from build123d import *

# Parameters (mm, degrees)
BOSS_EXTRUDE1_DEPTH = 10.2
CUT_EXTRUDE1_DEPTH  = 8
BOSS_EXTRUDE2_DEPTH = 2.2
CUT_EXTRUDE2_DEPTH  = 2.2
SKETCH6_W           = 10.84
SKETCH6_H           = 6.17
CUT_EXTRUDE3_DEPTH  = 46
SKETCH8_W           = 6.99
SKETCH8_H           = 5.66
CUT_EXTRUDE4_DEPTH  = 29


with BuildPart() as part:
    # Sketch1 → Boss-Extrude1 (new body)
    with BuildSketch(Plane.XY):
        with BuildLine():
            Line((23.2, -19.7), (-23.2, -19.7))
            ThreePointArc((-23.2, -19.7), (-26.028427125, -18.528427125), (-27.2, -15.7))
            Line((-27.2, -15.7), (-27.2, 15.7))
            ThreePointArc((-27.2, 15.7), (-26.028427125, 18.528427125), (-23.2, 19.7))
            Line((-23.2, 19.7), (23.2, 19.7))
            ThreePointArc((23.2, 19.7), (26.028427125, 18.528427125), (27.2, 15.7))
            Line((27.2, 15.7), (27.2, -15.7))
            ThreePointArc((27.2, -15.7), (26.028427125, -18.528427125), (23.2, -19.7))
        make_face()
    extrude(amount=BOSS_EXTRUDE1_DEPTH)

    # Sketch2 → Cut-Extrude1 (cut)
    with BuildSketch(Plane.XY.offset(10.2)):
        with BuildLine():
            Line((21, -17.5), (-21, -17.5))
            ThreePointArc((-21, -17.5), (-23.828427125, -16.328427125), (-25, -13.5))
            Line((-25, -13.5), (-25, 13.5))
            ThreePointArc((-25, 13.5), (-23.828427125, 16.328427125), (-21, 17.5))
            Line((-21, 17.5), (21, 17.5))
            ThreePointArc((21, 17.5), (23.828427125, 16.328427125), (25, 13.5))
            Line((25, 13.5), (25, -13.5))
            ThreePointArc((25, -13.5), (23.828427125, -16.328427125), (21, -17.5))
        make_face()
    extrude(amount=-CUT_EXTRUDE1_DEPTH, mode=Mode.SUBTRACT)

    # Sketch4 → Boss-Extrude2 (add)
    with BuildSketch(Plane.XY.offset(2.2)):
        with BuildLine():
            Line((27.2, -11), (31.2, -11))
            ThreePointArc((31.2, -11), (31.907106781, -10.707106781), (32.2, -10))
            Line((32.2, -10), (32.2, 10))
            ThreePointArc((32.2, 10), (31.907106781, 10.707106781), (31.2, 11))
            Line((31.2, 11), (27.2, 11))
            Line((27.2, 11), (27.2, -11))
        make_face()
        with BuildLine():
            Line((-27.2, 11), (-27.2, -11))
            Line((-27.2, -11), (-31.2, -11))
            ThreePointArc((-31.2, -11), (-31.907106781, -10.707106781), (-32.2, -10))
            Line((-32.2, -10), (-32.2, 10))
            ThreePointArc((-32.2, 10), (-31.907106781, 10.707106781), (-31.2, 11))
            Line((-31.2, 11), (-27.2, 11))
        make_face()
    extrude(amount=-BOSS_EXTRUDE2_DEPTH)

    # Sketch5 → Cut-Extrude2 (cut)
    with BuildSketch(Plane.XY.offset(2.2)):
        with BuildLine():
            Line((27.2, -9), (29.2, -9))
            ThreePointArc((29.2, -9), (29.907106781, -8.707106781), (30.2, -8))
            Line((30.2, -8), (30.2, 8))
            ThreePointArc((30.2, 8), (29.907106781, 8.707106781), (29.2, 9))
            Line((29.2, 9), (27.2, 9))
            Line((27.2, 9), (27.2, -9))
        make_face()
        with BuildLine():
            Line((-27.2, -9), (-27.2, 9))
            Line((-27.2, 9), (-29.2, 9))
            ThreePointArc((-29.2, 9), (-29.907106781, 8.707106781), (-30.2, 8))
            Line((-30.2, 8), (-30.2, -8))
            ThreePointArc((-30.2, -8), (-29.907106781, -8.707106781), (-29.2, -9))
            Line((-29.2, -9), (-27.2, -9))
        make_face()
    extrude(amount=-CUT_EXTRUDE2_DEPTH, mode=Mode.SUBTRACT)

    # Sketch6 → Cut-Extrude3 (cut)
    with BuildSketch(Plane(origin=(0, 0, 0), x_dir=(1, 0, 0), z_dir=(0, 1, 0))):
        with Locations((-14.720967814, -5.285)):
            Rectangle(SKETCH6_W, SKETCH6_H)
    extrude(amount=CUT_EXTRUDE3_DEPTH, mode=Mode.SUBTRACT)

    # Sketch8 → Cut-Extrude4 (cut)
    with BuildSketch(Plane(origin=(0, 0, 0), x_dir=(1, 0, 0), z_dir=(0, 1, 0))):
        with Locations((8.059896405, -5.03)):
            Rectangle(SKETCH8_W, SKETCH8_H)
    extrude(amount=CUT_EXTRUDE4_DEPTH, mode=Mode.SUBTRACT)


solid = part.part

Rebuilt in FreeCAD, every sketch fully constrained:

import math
import FreeCAD as App
import Part
import Sketcher
from FreeCAD import Vector


def add_polygon(sketch, points):
    """Adds a closed chain of lines whose ends are joined by coincident constraints."""
    first, n = sketch.GeometryCount, len(points)
    for a, b in zip(points, points[1:] + points[:1]):
        sketch.addGeometry(Part.LineSegment(App.Vector(*a, 0), App.Vector(*b, 0)), False)
    for i in range(n):
        sketch.addConstraint(Sketcher.Constraint("Coincident", first + i, 2, first + (i + 1) % n, 1))

doc = App.newDocument("Part")
body = doc.addObject("PartDesign::Body", "Body")

# Sketch on XY plane
sketch1 = body.newObject("Sketcher::SketchObject", "Sketch")
sketch1.AttachmentSupport = (doc.getObject("XY_Plane"), [""])
sketch1.MapMode = "FlatFace"
sketch1.addGeometry(Part.LineSegment(Vector(-23.2, -19.7, 0), Vector(23.2, -19.7, 0)), False)
sketch1.addGeometry(Part.ArcOfCircle(Part.Circle(Vector(23.2, -15.7, 0), Vector(0, 0, 1), 4), math.radians(-90), math.radians(0)), False)
sketch1.addGeometry(Part.LineSegment(Vector(27.2, -15.7, 0), Vector(27.2, 15.7, 0)), False)
sketch1.addGeometry(Part.ArcOfCircle(Part.Circle(Vector(23.2, 15.7, 0), Vector(0, 0, 1), 4), math.radians(0), math.radians(90)), False)
sketch1.addGeometry(Part.LineSegment(Vector(23.2, 19.7, 0), Vector(-23.2, 19.7, 0)), False)
sketch1.addGeometry(Part.ArcOfCircle(Part.Circle(Vector(-23.2, 15.7, 0), Vector(0, 0, 1), 4), math.radians(90), math.radians(180)), False)
sketch1.addGeometry(Part.LineSegment(Vector(-27.2, 15.7, 0), Vector(-27.2, -15.7, 0)), False)
sketch1.addGeometry(Part.ArcOfCircle(Part.Circle(Vector(-23.2, -15.7, 0), Vector(0, 0, 1), 4), math.radians(180), math.radians(270)), False)
sketch1.addConstraint(Sketcher.Constraint("Tangent", 0, 2, 1, 1))
sketch1.addConstraint(Sketcher.Constraint("Tangent", 1, 2, 2, 1))
sketch1.addConstraint(Sketcher.Constraint("Tangent", 2, 2, 3, 1))
sketch1.addConstraint(Sketcher.Constraint("Tangent", 3, 2, 4, 1))
sketch1.addConstraint(Sketcher.Constraint("Tangent", 4, 2, 5, 1))
sketch1.addConstraint(Sketcher.Constraint("Tangent", 5, 2, 6, 1))
sketch1.addConstraint(Sketcher.Constraint("Tangent", 6, 2, 7, 1))
sketch1.addConstraint(Sketcher.Constraint("Tangent", 7, 2, 0, 1))
sketch1.addConstraint(Sketcher.Constraint("Horizontal", 0))
sketch1.addConstraint(Sketcher.Constraint("Vertical", 2))
sketch1.addConstraint(Sketcher.Constraint("Horizontal", 4))
sketch1.addConstraint(Sketcher.Constraint("Vertical", 6))
sketch1.addConstraint(Sketcher.Constraint("Equal", 1, 3))
sketch1.addConstraint(Sketcher.Constraint("Equal", 3, 5))
sketch1.addConstraint(Sketcher.Constraint("Equal", 5, 7))
sketch1.addConstraint(Sketcher.Constraint("Symmetric", 1, 3, 5, 3, -1, 1))
sketch1.addConstraint(Sketcher.Constraint("Radius", 1, 4.0))
sketch1.addConstraint(Sketcher.Constraint("DistanceX", 0, 1, 0, 2, 46.4))
sketch1.addConstraint(Sketcher.Constraint("DistanceY", 2, 1, 2, 2, 31.4))
pad1 = body.newObject("PartDesign::Pad", "Pad")
pad1.Profile = sketch1
pad1.Length = 10.2

# Sketch on XY plane
sketch2 = body.newObject("Sketcher::SketchObject", "Sketch001")
sketch2.AttachmentSupport = (doc.getObject("XY_Plane"), [""])
sketch2.MapMode = "FlatFace"
sketch2.AttachmentOffset = App.Placement(Vector(0, 0, 10.2), App.Rotation())
sketch2.addGeometry(Part.LineSegment(Vector(-21, -17.5, 0), Vector(21, -17.5, 0)), False)
sketch2.addGeometry(Part.ArcOfCircle(Part.Circle(Vector(21, -13.5, 0), Vector(0, 0, 1), 4), math.radians(-90), math.radians(0)), False)
sketch2.addGeometry(Part.LineSegment(Vector(25, -13.5, 0), Vector(25, 13.5, 0)), False)
sketch2.addGeometry(Part.ArcOfCircle(Part.Circle(Vector(21, 13.5, 0), Vector(0, 0, 1), 4), math.radians(0), math.radians(90)), False)
sketch2.addGeometry(Part.LineSegment(Vector(21, 17.5, 0), Vector(-21, 17.5, 0)), False)
sketch2.addGeometry(Part.ArcOfCircle(Part.Circle(Vector(-21, 13.5, 0), Vector(0, 0, 1), 4), math.radians(90), math.radians(180)), False)
sketch2.addGeometry(Part.LineSegment(Vector(-25, 13.5, 0), Vector(-25, -13.5, 0)), False)
sketch2.addGeometry(Part.ArcOfCircle(Part.Circle(Vector(-21, -13.5, 0), Vector(0, 0, 1), 4), math.radians(180), math.radians(270)), False)
sketch2.addConstraint(Sketcher.Constraint("Tangent", 0, 2, 1, 1))
sketch2.addConstraint(Sketcher.Constraint("Tangent", 1, 2, 2, 1))
sketch2.addConstraint(Sketcher.Constraint("Tangent", 2, 2, 3, 1))
sketch2.addConstraint(Sketcher.Constraint("Tangent", 3, 2, 4, 1))
sketch2.addConstraint(Sketcher.Constraint("Tangent", 4, 2, 5, 1))
sketch2.addConstraint(Sketcher.Constraint("Tangent", 5, 2, 6, 1))
sketch2.addConstraint(Sketcher.Constraint("Tangent", 6, 2, 7, 1))
sketch2.addConstraint(Sketcher.Constraint("Tangent", 7, 2, 0, 1))
sketch2.addConstraint(Sketcher.Constraint("Horizontal", 0))
sketch2.addConstraint(Sketcher.Constraint("Vertical", 2))
sketch2.addConstraint(Sketcher.Constraint("Horizontal", 4))
sketch2.addConstraint(Sketcher.Constraint("Vertical", 6))
sketch2.addConstraint(Sketcher.Constraint("Equal", 1, 3))
sketch2.addConstraint(Sketcher.Constraint("Equal", 3, 5))
sketch2.addConstraint(Sketcher.Constraint("Equal", 5, 7))
sketch2.addConstraint(Sketcher.Constraint("Symmetric", 1, 3, 5, 3, -1, 1))
sketch2.addConstraint(Sketcher.Constraint("Radius", 1, 4.0))
sketch2.addConstraint(Sketcher.Constraint("DistanceX", 0, 1, 0, 2, 42.0))
sketch2.addConstraint(Sketcher.Constraint("DistanceY", 2, 1, 2, 2, 27.0))
pocket1 = body.newObject("PartDesign::Pocket", "Pocket")
pocket1.Profile = sketch2
pocket1.Length = 8

# Sketch on XY plane
sketch3 = body.newObject("Sketcher::SketchObject", "Sketch002")
sketch3.AttachmentSupport = (doc.getObject("XY_Plane"), [""])
sketch3.MapMode = "FlatFace"
sketch3.AttachmentOffset = App.Placement(Vector(0, 0, 2.2), App.Rotation())
sketch3.addGeometry(Part.LineSegment(Vector(27.2, -11, 0), Vector(31.2, -11, 0)), False)
sketch3.addGeometry(Part.ArcOfCircle(Part.Circle(Vector(31.2, -10, 0), Vector(0, 0, 1), 1), math.radians(-90), math.radians(0)), False)
sketch3.addGeometry(Part.LineSegment(Vector(32.2, -10, 0), Vector(32.2, 10, 0)), False)
sketch3.addGeometry(Part.ArcOfCircle(Part.Circle(Vector(31.2, 10, 0), Vector(0, 0, 1), 1), math.radians(0), math.radians(90)), False)
sketch3.addGeometry(Part.LineSegment(Vector(31.2, 11, 0), Vector(27.2, 11, 0)), False)
sketch3.addGeometry(Part.LineSegment(Vector(27.2, 11, 0), Vector(27.2, -11, 0)), False)
sketch3.addGeometry(Part.LineSegment(Vector(-27.2, -11, 0), Vector(-27.2, 11, 0)), False)
sketch3.addGeometry(Part.LineSegment(Vector(-27.2, 11, 0), Vector(-31.2, 11, 0)), False)
sketch3.addGeometry(Part.ArcOfCircle(Part.Circle(Vector(-31.2, 10, 0), Vector(0, 0, 1), 1), math.radians(90), math.radians(180)), False)
sketch3.addGeometry(Part.LineSegment(Vector(-32.2, 10, 0), Vector(-32.2, -10, 0)), False)
sketch3.addGeometry(Part.ArcOfCircle(Part.Circle(Vector(-31.2, -10, 0), Vector(0, 0, 1), 1), math.radians(-180), math.radians(-90)), False)
sketch3.addGeometry(Part.LineSegment(Vector(-31.2, -11, 0), Vector(-27.2, -11, 0)), False)
sketch3.addConstraint(Sketcher.Constraint("Tangent", 0, 2, 1, 1))
sketch3.addConstraint(Sketcher.Constraint("Tangent", 1, 2, 2, 1))
sketch3.addConstraint(Sketcher.Constraint("Tangent", 2, 2, 3, 1))
sketch3.addConstraint(Sketcher.Constraint("Tangent", 3, 2, 4, 1))
sketch3.addConstraint(Sketcher.Constraint("Coincident", 4, 2, 5, 1))
sketch3.addConstraint(Sketcher.Constraint("Coincident", 5, 2, 0, 1))
sketch3.addConstraint(Sketcher.Constraint("Coincident", 6, 2, 7, 1))
sketch3.addConstraint(Sketcher.Constraint("Tangent", 7, 2, 8, 1))
sketch3.addConstraint(Sketcher.Constraint("Tangent", 8, 2, 9, 1))
sketch3.addConstraint(Sketcher.Constraint("Tangent", 9, 2, 10, 1))
sketch3.addConstraint(Sketcher.Constraint("Tangent", 10, 2, 11, 1))
sketch3.addConstraint(Sketcher.Constraint("Coincident", 11, 2, 6, 1))
sketch3.addConstraint(Sketcher.Constraint("Horizontal", 0))
sketch3.addConstraint(Sketcher.Constraint("Vertical", 2))
sketch3.addConstraint(Sketcher.Constraint("Horizontal", 4))
sketch3.addConstraint(Sketcher.Constraint("Vertical", 5))
sketch3.addConstraint(Sketcher.Constraint("Vertical", 6))
sketch3.addConstraint(Sketcher.Constraint("Horizontal", 7))
sketch3.addConstraint(Sketcher.Constraint("Vertical", 9))
sketch3.addConstraint(Sketcher.Constraint("Horizontal", 11))
sketch3.addConstraint(Sketcher.Constraint("Equal", 1, 3))
sketch3.addConstraint(Sketcher.Constraint("Equal", 3, 8))
sketch3.addConstraint(Sketcher.Constraint("Equal", 8, 10))
sketch3.addConstraint(Sketcher.Constraint("Symmetric", 1, 3, 8, 3, -1, 1))
sketch3.addConstraint(Sketcher.Constraint("Symmetric", 4, 2, 11, 2, -1, 1))
sketch3.addConstraint(Sketcher.Constraint("Horizontal", 3, 3, 8, 3))
sketch3.addConstraint(Sketcher.Constraint("Radius", 1, 1.0))
sketch3.addConstraint(Sketcher.Constraint("DistanceX", 0, 1, 0, 2, 4.0))
sketch3.addConstraint(Sketcher.Constraint("DistanceY", 2, 1, 2, 2, 20.0))
sketch3.addConstraint(Sketcher.Constraint("DistanceX", -1, 1, 1, 3, 31.2))
pad2 = body.newObject("PartDesign::Pad", "Pad001")
pad2.Profile = sketch3
pad2.Length = 2.2
pad2.Reversed = True

# Sketch on XY plane
sketch4 = body.newObject("Sketcher::SketchObject", "Sketch003")
sketch4.AttachmentSupport = (doc.getObject("XY_Plane"), [""])
sketch4.MapMode = "FlatFace"
sketch4.AttachmentOffset = App.Placement(Vector(0, 0, 2.2), App.Rotation())
sketch4.addGeometry(Part.LineSegment(Vector(27.2, -9, 0), Vector(29.2, -9, 0)), False)
sketch4.addGeometry(Part.ArcOfCircle(Part.Circle(Vector(29.2, -8, 0), Vector(0, 0, 1), 1), math.radians(-90), math.radians(0)), False)
sketch4.addGeometry(Part.LineSegment(Vector(30.2, -8, 0), Vector(30.2, 8, 0)), False)
sketch4.addGeometry(Part.ArcOfCircle(Part.Circle(Vector(29.2, 8, 0), Vector(0, 0, 1), 1), math.radians(0), math.radians(90)), False)
sketch4.addGeometry(Part.LineSegment(Vector(29.2, 9, 0), Vector(27.2, 9, 0)), False)
sketch4.addGeometry(Part.LineSegment(Vector(27.2, 9, 0), Vector(27.2, -9, 0)), False)
sketch4.addGeometry(Part.LineSegment(Vector(-27.2, -9, 0), Vector(-27.2, 9, 0)), False)
sketch4.addGeometry(Part.LineSegment(Vector(-27.2, 9, 0), Vector(-29.2, 9, 0)), False)
sketch4.addGeometry(Part.ArcOfCircle(Part.Circle(Vector(-29.2, 8, 0), Vector(0, 0, 1), 1), math.radians(90), math.radians(180)), False)
sketch4.addGeometry(Part.LineSegment(Vector(-30.2, 8, 0), Vector(-30.2, -8, 0)), False)
sketch4.addGeometry(Part.ArcOfCircle(Part.Circle(Vector(-29.2, -8, 0), Vector(0, 0, 1), 1), math.radians(-180), math.radians(-90)), False)
sketch4.addGeometry(Part.LineSegment(Vector(-29.2, -9, 0), Vector(-27.2, -9, 0)), False)
sketch4.addConstraint(Sketcher.Constraint("Tangent", 0, 2, 1, 1))
sketch4.addConstraint(Sketcher.Constraint("Tangent", 1, 2, 2, 1))
sketch4.addConstraint(Sketcher.Constraint("Tangent", 2, 2, 3, 1))
sketch4.addConstraint(Sketcher.Constraint("Tangent", 3, 2, 4, 1))
sketch4.addConstraint(Sketcher.Constraint("Coincident", 4, 2, 5, 1))
sketch4.addConstraint(Sketcher.Constraint("Coincident", 5, 2, 0, 1))
sketch4.addConstraint(Sketcher.Constraint("Coincident", 6, 2, 7, 1))
sketch4.addConstraint(Sketcher.Constraint("Tangent", 7, 2, 8, 1))
sketch4.addConstraint(Sketcher.Constraint("Tangent", 8, 2, 9, 1))
sketch4.addConstraint(Sketcher.Constraint("Tangent", 9, 2, 10, 1))
sketch4.addConstraint(Sketcher.Constraint("Tangent", 10, 2, 11, 1))
sketch4.addConstraint(Sketcher.Constraint("Coincident", 11, 2, 6, 1))
sketch4.addConstraint(Sketcher.Constraint("Horizontal", 0))
sketch4.addConstraint(Sketcher.Constraint("Vertical", 2))
sketch4.addConstraint(Sketcher.Constraint("Horizontal", 4))
sketch4.addConstraint(Sketcher.Constraint("Vertical", 5))
sketch4.addConstraint(Sketcher.Constraint("Vertical", 6))
sketch4.addConstraint(Sketcher.Constraint("Horizontal", 7))
sketch4.addConstraint(Sketcher.Constraint("Vertical", 9))
sketch4.addConstraint(Sketcher.Constraint("Horizontal", 11))
sketch4.addConstraint(Sketcher.Constraint("Equal", 1, 3))
sketch4.addConstraint(Sketcher.Constraint("Equal", 3, 8))
sketch4.addConstraint(Sketcher.Constraint("Equal", 8, 10))
sketch4.addConstraint(Sketcher.Constraint("Symmetric", 1, 3, 8, 3, -1, 1))
sketch4.addConstraint(Sketcher.Constraint("Symmetric", 4, 2, 11, 2, -1, 1))
sketch4.addConstraint(Sketcher.Constraint("Horizontal", 3, 3, 8, 3))
sketch4.addConstraint(Sketcher.Constraint("Radius", 1, 1.0))
sketch4.addConstraint(Sketcher.Constraint("DistanceX", 0, 1, 0, 2, 2.0))
sketch4.addConstraint(Sketcher.Constraint("DistanceY", 2, 1, 2, 2, 16.0))
sketch4.addConstraint(Sketcher.Constraint("DistanceX", -1, 1, 1, 3, 29.2))
pocket2 = body.newObject("PartDesign::Pocket", "Pocket001")
pocket2.Profile = sketch4
pocket2.Length = 2.2

# Sketch on XZ plane
sketch5 = body.newObject("Sketcher::SketchObject", "Sketch004")
sketch5.AttachmentSupport = (doc.getObject("XZ_Plane"), [""])
sketch5.MapMode = "FlatFace"
add_polygon(sketch5, [(-20, 2), (-20, 8), (-9, 8), (-9, 2)])  # lines 0-3
sketch5.addConstraint(Sketcher.Constraint("Vertical", 0))
sketch5.addConstraint(Sketcher.Constraint("Horizontal", 1))
sketch5.addConstraint(Sketcher.Constraint("Vertical", 2))
sketch5.addConstraint(Sketcher.Constraint("Horizontal", 3))
sketch5.addConstraint(Sketcher.Constraint("DistanceX", 1, 1, 1, 2, 10.84))
sketch5.addConstraint(Sketcher.Constraint("DistanceY", 0, 1, 0, 2, 6.17))
sketch5.addConstraint(Sketcher.Constraint("DistanceY", -1, 1, 2, 2, 2.2))
sketch5.addConstraint(Sketcher.Constraint("DistanceX", 0, 2, -1, 1, 20.140968))
pocket3 = body.newObject("PartDesign::Pocket", "Pocket002")
pocket3.Profile = sketch5
pocket3.Length = 46

# Sketch on XZ plane
sketch6 = body.newObject("Sketcher::SketchObject", "Sketch005")
sketch6.AttachmentSupport = (doc.getObject("XZ_Plane"), [""])
sketch6.MapMode = "FlatFace"
add_polygon(sketch6, [(5, 2), (5, 8), (12, 8), (12, 2)])  # lines 0-3
sketch6.addConstraint(Sketcher.Constraint("Vertical", 0))
sketch6.addConstraint(Sketcher.Constraint("Horizontal", 1))
sketch6.addConstraint(Sketcher.Constraint("Vertical", 2))
sketch6.addConstraint(Sketcher.Constraint("Horizontal", 3))
sketch6.addConstraint(Sketcher.Constraint("DistanceX", 1, 1, 1, 2, 6.99))
sketch6.addConstraint(Sketcher.Constraint("DistanceY", 0, 1, 0, 2, 5.66))
sketch6.addConstraint(Sketcher.Constraint("DistanceY", -1, 1, 2, 2, 2.2))
sketch6.addConstraint(Sketcher.Constraint("DistanceX", -1, 1, 0, 2, 4.564896))
pocket4 = body.newObject("PartDesign::Pocket", "Pocket003")
pocket4.Profile = sketch6
pocket4.Length = 29

doc.recompute()
